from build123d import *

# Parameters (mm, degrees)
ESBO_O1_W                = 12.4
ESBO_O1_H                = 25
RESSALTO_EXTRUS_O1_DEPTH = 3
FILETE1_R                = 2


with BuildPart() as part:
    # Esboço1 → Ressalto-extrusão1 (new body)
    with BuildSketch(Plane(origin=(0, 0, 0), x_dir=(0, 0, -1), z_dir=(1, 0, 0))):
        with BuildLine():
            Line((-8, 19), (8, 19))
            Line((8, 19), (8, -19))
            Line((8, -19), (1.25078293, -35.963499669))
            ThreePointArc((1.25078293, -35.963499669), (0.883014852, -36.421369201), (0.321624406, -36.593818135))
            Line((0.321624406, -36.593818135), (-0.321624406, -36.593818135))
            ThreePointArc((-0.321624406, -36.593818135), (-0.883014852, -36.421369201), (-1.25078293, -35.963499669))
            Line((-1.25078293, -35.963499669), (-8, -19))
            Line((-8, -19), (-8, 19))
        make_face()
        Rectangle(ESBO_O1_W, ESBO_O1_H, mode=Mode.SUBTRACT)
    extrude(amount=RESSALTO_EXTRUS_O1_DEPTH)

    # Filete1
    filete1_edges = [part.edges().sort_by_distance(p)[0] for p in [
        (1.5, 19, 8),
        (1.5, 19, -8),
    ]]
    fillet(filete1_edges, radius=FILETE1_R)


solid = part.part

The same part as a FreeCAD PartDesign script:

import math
import FreeCAD as App
import Part
import Sketcher

V = App.Vector
Q = App.Units.Quantity


def edges_at(feature, points):
    """Names of the edges that pass closest to the given points."""
    edges = feature.Shape.Edges
    near = lambda p: min(range(len(edges)), key=lambda i: edges[i].distToShape(Part.Vertex(*p))[0])
    return sorted({f"Edge{near(p) + 1}" for p in points})


def add_polygon(sketch, points):
    """Adds a closed chain of lines whose ends are joined by coincident constraints."""
    first, n = sketch.GeometryCount, len(points)
    for a, b in zip(points, points[1:] + points[:1]):
        sketch.addGeometry(Part.LineSegment(App.Vector(*a, 0), App.Vector(*b, 0)), False)
    for i in range(n):
        sketch.addConstraint(Sketcher.Constraint("Coincident", first + i, 2, first + (i + 1) % n, 1))

doc = App.newDocument("Part")
params = doc.addObject("Spreadsheet::Sheet", "Params")
for row, (alias, value) in enumerate([
    ("sketch1_radius", "1 mm"),
    ("sketch1_width", "38 mm"),
    ("sketch1_width2", "25 mm"),
    ("sketch1_height", "16 mm"),
    ("sketch1_height2", "12.4 mm"),
    ("pad1_length", "3 mm"),
    ("fillet_radius", "2 mm"),
], start=1):
    params.set(f"A{row}", alias)
    params.set(f"B{row}", "=" + value)
    params.setAlias(f"B{row}", alias)

body = doc.addObject("PartDesign::Body", "Body")

sketch1 = body.newObject("Sketcher::SketchObject", "Sketch")
sketch1.AttachmentSupport = (doc.getObject("YZ_Plane"), [""])
sketch1.MapMode = "FlatFace"
sketch1.addGeometry(Part.LineSegment(V(19, -8, 0), V(19, 8, 0)), False)
sketch1.addGeometry(Part.LineSegment(V(19, 8, 0), V(-19, 8, 0)), False)
sketch1.addGeometry(Part.LineSegment(V(-19, 8, 0), V(-36, 1.3, 0)), False)
sketch1.addGeometry(Part.ArcOfCircle(Part.Circle(V(-35.6, 0.3, 0), V(0, 0, 1), 1), math.radians(112), math.radians(180)), False)
sketch1.addGeometry(Part.LineSegment(V(-36.6, 0.3, 0), V(-36.6, -0.3, 0)), False)
sketch1.addGeometry(Part.ArcOfCircle(Part.Circle(V(-35.6, -0.3, 0), V(0, 0, 1), 1), math.radians(180), math.radians(248)), False)
sketch1.addGeometry(Part.LineSegment(V(-36, -1.3, 0), V(-19, -8, 0)), False)
sketch1.addGeometry(Part.LineSegment(V(-19, -8, 0), V(19, -8, 0)), False)
add_polygon(sketch1, [(-12.5, 6.2), (12.5, 6.2), (12.5, -6.2), (-12.5, -6.2)])
sketch1.addConstraint(Sketcher.Constraint("Coincident", 0, 2, 1, 1))
sketch1.addConstraint(Sketcher.Constraint("Coincident", 1, 2, 2, 1))
sketch1.addConstraint(Sketcher.Constraint("Tangent", 2, 2, 3, 1))
sketch1.addConstraint(Sketcher.Constraint("Tangent", 3, 2, 4, 1))
sketch1.addConstraint(Sketcher.Constraint("Tangent", 4, 2, 5, 1))
sketch1.addConstraint(Sketcher.Constraint("Tangent", 5, 2, 6, 1))
sketch1.addConstraint(Sketcher.Constraint("Coincident", 6, 2, 7, 1))
sketch1.addConstraint(Sketcher.Constraint("Coincident", 7, 2, 0, 1))
sketch1.addConstraint(Sketcher.Constraint("Vertical", 0))
sketch1.addConstraint(Sketcher.Constraint("Horizontal", 1))
sketch1.addConstraint(Sketcher.Constraint("Vertical", 4))
sketch1.addConstraint(Sketcher.Constraint("Horizontal", 7))
sketch1.addConstraint(Sketcher.Constraint("Horizontal", 8))
sketch1.addConstraint(Sketcher.Constraint("Vertical", 9))
sketch1.addConstraint(Sketcher.Constraint("Horizontal", 10))
sketch1.addConstraint(Sketcher.Constraint("Vertical", 11))
sketch1.addConstraint(Sketcher.Constraint("Equal", 3, 5))
sketch1.addConstraint(Sketcher.Constraint("Symmetric", 0, 2, 6, 2, -1, 1))
sketch1.addConstraint(Sketcher.Constraint("Symmetric", 8, 2, 10, 2, -1, 1))
sketch1.addConstraint(Sketcher.Constraint("Symmetric", 2, 2, 5, 2, -1))
sketch1.addConstraint(Sketcher.Constraint("Radius", 3, Q("1 mm")))
sketch1.addConstraint(Sketcher.Constraint("DistanceX", 1, 2, 1, 1, Q("38 mm")))
sketch1.addConstraint(Sketcher.Constraint("DistanceX", 8, 1, 8, 2, Q("25 mm")))
sketch1.addConstraint(Sketcher.Constraint("DistanceY", 0, 1, 0, 2, Q("16 mm")))
sketch1.addConstraint(Sketcher.Constraint("DistanceY", 9, 2, 9, 1, Q("12.4 mm")))
sketch1.addConstraint(Sketcher.Constraint("DistanceY", 4, 2, 4, 1, Q("0.643249 mm")))
sketch1.addConstraint(Sketcher.Constraint("DistanceX", 2, 2, -1, 1, Q("35.9635 mm")))
sketch1.setExpression("Constraints[24]", "Params.sketch1_radius")
sketch1.setExpression("Constraints[25]", "Params.sketch1_width")
sketch1.setExpression("Constraints[26]", "Params.sketch1_width2")
sketch1.setExpression("Constraints[27]", "Params.sketch1_height")
sketch1.setExpression("Constraints[28]", "Params.sketch1_height2")
pad1 = body.newObject("PartDesign::Pad", "Pad")
pad1.Profile = sketch1
pad1.setExpression("Length", "Params.pad1_length")
doc.recompute()

fillet = body.newObject("PartDesign::Fillet", "Fillet")
fillet.Base = (pad1, edges_at(pad1, [(1.5, 19, 8), (1.5, 19, -8)]))
fillet.setExpression("Radius", "Params.fillet_radius")

doc.recompute()
